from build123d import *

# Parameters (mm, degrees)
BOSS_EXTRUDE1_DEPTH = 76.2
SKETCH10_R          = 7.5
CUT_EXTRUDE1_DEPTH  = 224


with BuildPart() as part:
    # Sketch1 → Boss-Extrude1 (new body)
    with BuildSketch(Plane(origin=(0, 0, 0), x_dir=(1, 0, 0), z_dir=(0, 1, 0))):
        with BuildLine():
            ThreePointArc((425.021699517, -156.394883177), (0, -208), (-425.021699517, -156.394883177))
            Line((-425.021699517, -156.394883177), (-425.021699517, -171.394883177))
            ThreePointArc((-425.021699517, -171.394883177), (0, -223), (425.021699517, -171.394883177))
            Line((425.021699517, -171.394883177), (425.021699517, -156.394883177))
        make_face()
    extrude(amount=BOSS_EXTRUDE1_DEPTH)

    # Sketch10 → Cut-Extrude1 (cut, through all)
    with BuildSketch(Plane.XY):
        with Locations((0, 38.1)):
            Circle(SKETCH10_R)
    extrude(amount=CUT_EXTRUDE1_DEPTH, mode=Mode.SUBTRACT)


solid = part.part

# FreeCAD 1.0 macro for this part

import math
import FreeCAD as App
import Part
import Sketcher
Q = App.Units.Quantity

doc = App.newDocument("Part")
params = doc.addObject("Spreadsheet::Sheet", "Params")
for row, (alias, value) in enumerate([
    ("sketch1_height", "15 mm"),
    ("pad1_length", "76.2 mm"),
    ("sketch2_diameter", "15 mm"),
], start=1):
    params.set(f"A{row}", alias)
    params.set(f"B{row}", "=" + value)
    params.setAlias(f"B{row}", alias)

body = doc.addObject("PartDesign::Body", "Body")

# Sketch on XZ plane
sketch1 = body.newObject("Sketcher::SketchObject", "Sketch")
sketch1.AttachmentSupport = (doc.getObject("XZ_Plane"), [""])
sketch1.MapMode = "FlatFace"
sketch1.addGeometry(Part.ArcOfCircle(Part.Circle(App.Vector(0, -1568, 0), App.Vector(0, 0, 1), 1776), math.radians(76), math.radians(104)), False)
sketch1.addGeometry(Part.LineSegment(App.Vector(-425, 156, 0), App.Vector(-425, 171, 0)), False)
sketch1.addGeometry(Part.ArcOfCircle(Part.Circle(App.Vector(0, -1553, 0), App.Vector(0, 0, 1), 1776), math.radians(76), math.radians(104)), False)
sketch1.addGeometry(Part.LineSegment(App.Vector(425, 171, 0), App.Vector(425, 156, 0)), False)
sketch1.addConstraint(Sketcher.Constraint("Coincident", 0, 2, 1, 1))
sketch1.addConstraint(Sketcher.Constraint("Coincident", 1, 2, 2, 2))
sketch1.addConstraint(Sketcher.Constraint("Coincident", 2, 1, 3, 1))
sketch1.addConstraint(Sketcher.Constraint("Coincident", 3, 2, 0, 1))
sketch1.addConstraint(Sketcher.Constraint("Vertical", 1))
sketch1.addConstraint(Sketcher.Constraint("Vertical", 3))
sketch1.addConstraint(Sketcher.Constraint("Equal", 0, 2))
sketch1.addConstraint(Sketcher.Constraint("PointOnObject", 0, 3, -2))
sketch1.addConstraint(Sketcher.Constraint("PointOnObject", 2, 3, -2))
sketch1.addConstraint(Sketcher.Constraint("DistanceY", 1, 1, 1, 2, Q("15 mm")))
sketch1.addConstraint(Sketcher.Constraint("DistanceY", 3, 2, 1, 2, Q("15 mm")))
sketch1.addConstraint(Sketcher.Constraint("Radius", 0, Q("1776.049977 mm")))
sketch1.addConstraint(Sketcher.Constraint("DistanceX", 1, 2, -1, 1, Q("425.0217 mm")))
sketch1.addConstraint(Sketcher.Constraint("DistanceY", 0, 3, -1, 1, Q("1568.049977 mm")))
sketch1.setExpression("Constraints[9]", "Params.sketch1_height")
pad1 = body.newObject("PartDesign::Pad", "Pad")
pad1.Profile = sketch1
pad1.setExpression("Length", "Params.pad1_length")
pad1.Reversed = True

# Sketch on XY plane
sketch2 = body.newObject("Sketcher::SketchObject", "Sketch001")
sketch2.AttachmentSupport = (doc.getObject("XY_Plane"), [""])
sketch2.MapMode = "FlatFace"
sketch2.addGeometry(Part.Circle(App.Vector(0, 38, 0), App.Vector(0, 0, 1), 8), False)
sketch2.addConstraint(Sketcher.Constraint("PointOnObject", 0, 3, -2))
sketch2.addConstraint(Sketcher.Constraint("Diameter", 0, Q("15 mm")))
sketch2.addConstraint(Sketcher.Constraint("DistanceY", -1, 1, 0, 3, Q("38.1 mm")))
sketch2.setExpression("Constraints[1]", "Params.sketch2_diameter")
pocket1 = body.newObject("PartDesign::Pocket", "Pocket")
pocket1.Profile = sketch2
pocket1.Type = "ThroughAll"
pocket1.Reversed = True

doc.recompute()
